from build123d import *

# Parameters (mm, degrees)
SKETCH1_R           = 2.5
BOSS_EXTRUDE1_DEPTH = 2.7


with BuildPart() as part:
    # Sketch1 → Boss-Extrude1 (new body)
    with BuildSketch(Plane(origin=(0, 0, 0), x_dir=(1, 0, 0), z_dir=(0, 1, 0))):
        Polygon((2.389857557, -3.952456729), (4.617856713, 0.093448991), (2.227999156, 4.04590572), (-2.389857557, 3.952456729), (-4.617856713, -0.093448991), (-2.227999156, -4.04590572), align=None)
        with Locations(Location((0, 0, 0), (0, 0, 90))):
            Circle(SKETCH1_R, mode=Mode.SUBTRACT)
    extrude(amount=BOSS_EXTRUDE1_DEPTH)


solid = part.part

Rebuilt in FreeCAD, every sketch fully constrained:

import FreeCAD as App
import Part
import Sketcher

V = App.Vector
Q = App.Units.Quantity


def add_polygon(sketch, points):
    """Adds a closed chain of lines whose ends are joined by coincident constraints."""
    first, n = sketch.GeometryCount, len(points)
    for a, b in zip(points, points[1:] + points[:1]):
        sketch.addGeometry(Part.LineSegment(App.Vector(*a, 0), App.Vector(*b, 0)), False)
    for i in range(n):
        sketch.addConstraint(Sketcher.Constraint("Coincident", first + i, 2, first + (i + 1) % n, 1))

doc = App.newDocument("Part")
body = doc.addObject("PartDesign::Body", "Body")

# Sketch on XZ plane
sketch1 = body.newObject("Sketcher::SketchObject", "Sketch")
sketch1.AttachmentSupport = (doc.getObject("XZ_Plane"), [""])
sketch1.MapMode = "FlatFace"
add_polygon(sketch1, [(2.4, 4), (4.6, -0.1), (2.2, -4), (-2.4, -4), (-4.6, 0.1), (-2.2, 4)])  # lines 0-5
sketch1.addGeometry(Part.Circle(V(0, 0, 0), V(0, 0, 1), 2.5), False)  # 6
sketch1.addConstraint([
    Sketcher.Constraint("Coincident", 6, 3, -1, 1),
    Sketcher.Constraint("Symmetric", 0, 2, 3, 2, -1, 1),
    Sketcher.Constraint("Symmetric", 1, 2, 4, 2, -1, 1),
    Sketcher.Constraint("Symmetric", 2, 2, 5, 2, -1, 1),
    Sketcher.Constraint("Equal", 0, 1),
    Sketcher.Constraint("Equal", 1, 2),
    Sketcher.Constraint("Diameter", 6, Q("5 mm")),
    Sketcher.Constraint("DistanceX", -1, 1, 1, 2, Q("2.227999 mm")),
    Sketcher.Constraint("DistanceX", 3, 2, 2, 2, Q("2.227999 mm")),
    Sketcher.Constraint("DistanceY", 0, 2, -1, 1, Q("0.093449 mm")),
    Sketcher.Constraint("DistanceY", 1, 2, 2, 2, Q("0.093449 mm")),
])
pad1 = body.newObject("PartDesign::Pad", "Pad")
pad1.Profile = sketch1
pad1.Length = 2.7
pad1.Reversed = True

doc.recompute()
